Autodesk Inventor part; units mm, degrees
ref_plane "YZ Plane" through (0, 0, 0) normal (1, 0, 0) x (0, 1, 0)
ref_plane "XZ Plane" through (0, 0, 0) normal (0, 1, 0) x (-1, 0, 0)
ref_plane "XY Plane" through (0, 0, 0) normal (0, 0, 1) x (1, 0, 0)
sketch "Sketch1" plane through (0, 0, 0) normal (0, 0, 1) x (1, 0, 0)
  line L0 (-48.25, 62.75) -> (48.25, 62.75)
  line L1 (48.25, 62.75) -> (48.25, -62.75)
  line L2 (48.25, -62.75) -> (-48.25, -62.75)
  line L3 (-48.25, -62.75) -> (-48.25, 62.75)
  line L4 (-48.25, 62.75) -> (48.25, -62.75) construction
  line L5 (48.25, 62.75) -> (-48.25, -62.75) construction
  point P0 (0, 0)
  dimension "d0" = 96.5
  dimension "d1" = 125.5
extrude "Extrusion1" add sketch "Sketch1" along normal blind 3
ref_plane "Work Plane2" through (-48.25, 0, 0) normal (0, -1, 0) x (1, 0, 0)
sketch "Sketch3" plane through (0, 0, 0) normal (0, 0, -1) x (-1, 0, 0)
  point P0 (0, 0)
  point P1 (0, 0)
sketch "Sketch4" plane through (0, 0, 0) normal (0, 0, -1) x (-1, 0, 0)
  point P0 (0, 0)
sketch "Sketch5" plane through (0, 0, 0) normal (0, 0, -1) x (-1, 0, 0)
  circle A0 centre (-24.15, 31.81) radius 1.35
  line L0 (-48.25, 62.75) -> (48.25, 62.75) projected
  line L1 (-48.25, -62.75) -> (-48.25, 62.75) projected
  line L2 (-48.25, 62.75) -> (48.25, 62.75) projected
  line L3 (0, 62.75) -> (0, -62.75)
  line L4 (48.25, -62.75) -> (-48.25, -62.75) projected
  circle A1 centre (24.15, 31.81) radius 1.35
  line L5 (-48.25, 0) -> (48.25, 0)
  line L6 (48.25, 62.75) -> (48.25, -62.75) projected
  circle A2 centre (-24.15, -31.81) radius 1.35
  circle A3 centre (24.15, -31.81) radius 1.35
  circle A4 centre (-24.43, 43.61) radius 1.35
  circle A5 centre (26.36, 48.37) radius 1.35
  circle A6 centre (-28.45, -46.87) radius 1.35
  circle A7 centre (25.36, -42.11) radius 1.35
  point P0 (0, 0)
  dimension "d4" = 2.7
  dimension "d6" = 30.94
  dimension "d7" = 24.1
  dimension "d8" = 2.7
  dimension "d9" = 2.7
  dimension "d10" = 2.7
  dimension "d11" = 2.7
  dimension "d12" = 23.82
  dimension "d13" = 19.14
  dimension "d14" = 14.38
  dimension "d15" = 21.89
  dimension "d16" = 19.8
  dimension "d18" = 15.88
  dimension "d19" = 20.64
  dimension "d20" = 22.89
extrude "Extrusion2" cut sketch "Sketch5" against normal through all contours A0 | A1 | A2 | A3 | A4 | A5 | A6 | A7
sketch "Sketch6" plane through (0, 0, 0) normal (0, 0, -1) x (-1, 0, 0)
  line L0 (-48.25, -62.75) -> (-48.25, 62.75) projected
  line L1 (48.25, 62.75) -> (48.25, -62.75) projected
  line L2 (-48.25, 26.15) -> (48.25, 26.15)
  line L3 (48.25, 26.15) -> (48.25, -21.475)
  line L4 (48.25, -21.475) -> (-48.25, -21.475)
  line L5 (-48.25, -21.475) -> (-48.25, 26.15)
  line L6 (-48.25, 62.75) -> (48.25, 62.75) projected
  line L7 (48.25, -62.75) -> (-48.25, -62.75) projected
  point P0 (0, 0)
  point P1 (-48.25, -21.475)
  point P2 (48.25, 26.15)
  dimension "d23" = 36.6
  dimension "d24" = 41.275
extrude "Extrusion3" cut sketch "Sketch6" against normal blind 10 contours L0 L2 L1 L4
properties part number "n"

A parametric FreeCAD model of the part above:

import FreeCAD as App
import Part
import Sketcher

V = App.Vector

doc = App.newDocument("Part")
body = doc.addObject("PartDesign::Body", "Body")
body.AllowCompound = True

# Sketch on XY plane
sketch1 = body.newObject("Sketcher::SketchObject", "Sketch")
sketch1.AttachmentSupport = (doc.getObject("XY_Plane"), [""])
sketch1.MapMode = "FlatFace"
sketch1.addGeometry(Part.LineSegment(V(48, 63, 0), V(-48, 63, 0)), False)
sketch1.addGeometry(Part.LineSegment(V(-48, 63, 0), V(-48, -63, 0)), False)
sketch1.addGeometry(Part.LineSegment(V(-48, -63, 0), V(48, -63, 0)), False)
sketch1.addGeometry(Part.LineSegment(V(48, -63, 0), V(48, 63, 0)), False)
sketch1.addConstraint(Sketcher.Constraint("Coincident", 0, 2, 1, 1))
sketch1.addConstraint(Sketcher.Constraint("Coincident", 1, 2, 2, 1))
sketch1.addConstraint(Sketcher.Constraint("Coincident", 2, 2, 3, 1))
sketch1.addConstraint(Sketcher.Constraint("Coincident", 3, 2, 0, 1))
sketch1.addConstraint(Sketcher.Constraint("Horizontal", 0))
sketch1.addConstraint(Sketcher.Constraint("Vertical", 1))
sketch1.addConstraint(Sketcher.Constraint("Horizontal", 2))
sketch1.addConstraint(Sketcher.Constraint("Vertical", 3))
sketch1.addConstraint(Sketcher.Constraint("Symmetric", 0, 2, 2, 2, -1, 1))
sketch1.addConstraint(Sketcher.Constraint("DistanceX", 0, 2, 0, 1, 96.5))
sketch1.addConstraint(Sketcher.Constraint("DistanceY", 1, 2, 1, 1, 125.5))
pad1 = body.newObject("PartDesign::Pad", "Pad")
pad1.Profile = sketch1
pad1.Length = 3

# Sketch on XY plane
sketch2 = body.newObject("Sketcher::SketchObject", "Sketch001")
sketch2.AttachmentSupport = (doc.getObject("XY_Plane"), [""])
sketch2.MapMode = "FlatFace"
sketch2.addGeometry(Part.Circle(V(24.1, 31.8, 0), V(0, 0, 1), 1.4), False)
sketch2.addGeometry(Part.Circle(V(-24.1, 31.8, 0), V(0, 0, 1), 1.4), False)
sketch2.addGeometry(Part.Circle(V(24.1, -31.8, 0), V(0, 0, 1), 1.4), False)
sketch2.addGeometry(Part.Circle(V(-24.1, -31.8, 0), V(0, 0, 1), 1.4), False)
sketch2.addGeometry(Part.Circle(V(24.4, 43.6, 0), V(0, 0, 1), 1.4), False)
sketch2.addGeometry(Part.Circle(V(-26.4, 48.4, 0), V(0, 0, 1), 1.4), False)
sketch2.addGeometry(Part.Circle(V(28.4, -46.9, 0), V(0, 0, 1), 1.4), False)
sketch2.addGeometry(Part.Circle(V(-25.4, -42.1, 0), V(0, 0, 1), 1.4), False)
sketch2.addConstraint(Sketcher.Constraint("Equal", 0, 1))
sketch2.addConstraint(Sketcher.Constraint("Equal", 1, 2))
sketch2.addConstraint(Sketcher.Constraint("Equal", 2, 3))
sketch2.addConstraint(Sketcher.Constraint("Equal", 3, 4))
sketch2.addConstraint(Sketcher.Constraint("Equal", 4, 5))
sketch2.addConstraint(Sketcher.Constraint("Equal", 5, 6))
sketch2.addConstraint(Sketcher.Constraint("Equal", 6, 7))
sketch2.addConstraint(Sketcher.Constraint("Symmetric", 1, 3, 2, 3, -1, 1))
sketch2.addConstraint(Sketcher.Constraint("Symmetric", 0, 3, 3, 3, -1, 1))
sketch2.addConstraint(Sketcher.Constraint("Symmetric", 0, 3, 1, 3, -2))
sketch2.addConstraint(Sketcher.Constraint("Diameter", 0, 2.7))
sketch2.addConstraint(Sketcher.Constraint("DistanceX", 1, 3, 0, 3, 48.3))
sketch2.addConstraint(Sketcher.Constraint("DistanceY", 0, 3, 4, 3, 11.8))
sketch2.addConstraint(Sketcher.Constraint("DistanceX", 2, 3, 6, 3, 4.3))
sketch2.addConstraint(Sketcher.Constraint("DistanceY", 7, 3, 3, 3, 10.3))
sketch2.addConstraint(Sketcher.Constraint("DistanceY", -1, 1, 0, 3, 31.81))
sketch2.addConstraint(Sketcher.Constraint("DistanceX", -1, 1, 4, 3, 24.43))
sketch2.addConstraint(Sketcher.Constraint("DistanceX", 5, 3, -1, 1, 26.36))
sketch2.addConstraint(Sketcher.Constraint("DistanceY", -1, 1, 5, 3, 48.37))
sketch2.addConstraint(Sketcher.Constraint("DistanceY", 6, 3, -1, 1, 46.87))
sketch2.addConstraint(Sketcher.Constraint("DistanceX", 7, 3, -1, 1, 25.36))
pocket1 = body.newObject("PartDesign::Pocket", "Pocket")
pocket1.Profile = sketch2
pocket1.Type = "ThroughAll"
pocket1.Reversed = True

# Sketch on XY plane
sketch3 = body.newObject("Sketcher::SketchObject", "Sketch002")
sketch3.AttachmentSupport = (doc.getObject("XY_Plane"), [""])
sketch3.MapMode = "FlatFace"
sketch3.addGeometry(Part.LineSegment(V(48, 26, 0), V(48, -21, 0)), False)
sketch3.addGeometry(Part.LineSegment(V(48, -21, 0), V(-48, -21, 0)), False)
sketch3.addGeometry(Part.LineSegment(V(-48, -21, 0), V(-48, 26, 0)), False)
sketch3.addGeometry(Part.LineSegment(V(-48, 26, 0), V(48, 26, 0)), False)
sketch3.addConstraint(Sketcher.Constraint("Coincident", 0, 2, 1, 1))
sketch3.addConstraint(Sketcher.Constraint("Coincident", 1, 2, 2, 1))
sketch3.addConstraint(Sketcher.Constraint("Coincident", 2, 2, 3, 1))
sketch3.addConstraint(Sketcher.Constraint("Coincident", 3, 2, 0, 1))
sketch3.addConstraint(Sketcher.Constraint("Vertical", 0))
sketch3.addConstraint(Sketcher.Constraint("Horizontal", 1))
sketch3.addConstraint(Sketcher.Constraint("Vertical", 2))
sketch3.addConstraint(Sketcher.Constraint("Horizontal", 3))
sketch3.addConstraint(Sketcher.Constraint("DistanceX", 1, 2, 1, 1, 96.5))
sketch3.addConstraint(Sketcher.Constraint("DistanceY", 0, 2, 0, 1, 47.625))
sketch3.addConstraint(Sketcher.Constraint("DistanceX", -1, 1, 0, 2, 48.25))
sketch3.addConstraint(Sketcher.Constraint("DistanceY", -1, 1, 2, 2, 26.15))
pocket2 = body.newObject("PartDesign::Pocket", "Pocket001")
pocket2.Profile = sketch3
pocket2.Length = 10
pocket2.Reversed = True

doc.recompute()
